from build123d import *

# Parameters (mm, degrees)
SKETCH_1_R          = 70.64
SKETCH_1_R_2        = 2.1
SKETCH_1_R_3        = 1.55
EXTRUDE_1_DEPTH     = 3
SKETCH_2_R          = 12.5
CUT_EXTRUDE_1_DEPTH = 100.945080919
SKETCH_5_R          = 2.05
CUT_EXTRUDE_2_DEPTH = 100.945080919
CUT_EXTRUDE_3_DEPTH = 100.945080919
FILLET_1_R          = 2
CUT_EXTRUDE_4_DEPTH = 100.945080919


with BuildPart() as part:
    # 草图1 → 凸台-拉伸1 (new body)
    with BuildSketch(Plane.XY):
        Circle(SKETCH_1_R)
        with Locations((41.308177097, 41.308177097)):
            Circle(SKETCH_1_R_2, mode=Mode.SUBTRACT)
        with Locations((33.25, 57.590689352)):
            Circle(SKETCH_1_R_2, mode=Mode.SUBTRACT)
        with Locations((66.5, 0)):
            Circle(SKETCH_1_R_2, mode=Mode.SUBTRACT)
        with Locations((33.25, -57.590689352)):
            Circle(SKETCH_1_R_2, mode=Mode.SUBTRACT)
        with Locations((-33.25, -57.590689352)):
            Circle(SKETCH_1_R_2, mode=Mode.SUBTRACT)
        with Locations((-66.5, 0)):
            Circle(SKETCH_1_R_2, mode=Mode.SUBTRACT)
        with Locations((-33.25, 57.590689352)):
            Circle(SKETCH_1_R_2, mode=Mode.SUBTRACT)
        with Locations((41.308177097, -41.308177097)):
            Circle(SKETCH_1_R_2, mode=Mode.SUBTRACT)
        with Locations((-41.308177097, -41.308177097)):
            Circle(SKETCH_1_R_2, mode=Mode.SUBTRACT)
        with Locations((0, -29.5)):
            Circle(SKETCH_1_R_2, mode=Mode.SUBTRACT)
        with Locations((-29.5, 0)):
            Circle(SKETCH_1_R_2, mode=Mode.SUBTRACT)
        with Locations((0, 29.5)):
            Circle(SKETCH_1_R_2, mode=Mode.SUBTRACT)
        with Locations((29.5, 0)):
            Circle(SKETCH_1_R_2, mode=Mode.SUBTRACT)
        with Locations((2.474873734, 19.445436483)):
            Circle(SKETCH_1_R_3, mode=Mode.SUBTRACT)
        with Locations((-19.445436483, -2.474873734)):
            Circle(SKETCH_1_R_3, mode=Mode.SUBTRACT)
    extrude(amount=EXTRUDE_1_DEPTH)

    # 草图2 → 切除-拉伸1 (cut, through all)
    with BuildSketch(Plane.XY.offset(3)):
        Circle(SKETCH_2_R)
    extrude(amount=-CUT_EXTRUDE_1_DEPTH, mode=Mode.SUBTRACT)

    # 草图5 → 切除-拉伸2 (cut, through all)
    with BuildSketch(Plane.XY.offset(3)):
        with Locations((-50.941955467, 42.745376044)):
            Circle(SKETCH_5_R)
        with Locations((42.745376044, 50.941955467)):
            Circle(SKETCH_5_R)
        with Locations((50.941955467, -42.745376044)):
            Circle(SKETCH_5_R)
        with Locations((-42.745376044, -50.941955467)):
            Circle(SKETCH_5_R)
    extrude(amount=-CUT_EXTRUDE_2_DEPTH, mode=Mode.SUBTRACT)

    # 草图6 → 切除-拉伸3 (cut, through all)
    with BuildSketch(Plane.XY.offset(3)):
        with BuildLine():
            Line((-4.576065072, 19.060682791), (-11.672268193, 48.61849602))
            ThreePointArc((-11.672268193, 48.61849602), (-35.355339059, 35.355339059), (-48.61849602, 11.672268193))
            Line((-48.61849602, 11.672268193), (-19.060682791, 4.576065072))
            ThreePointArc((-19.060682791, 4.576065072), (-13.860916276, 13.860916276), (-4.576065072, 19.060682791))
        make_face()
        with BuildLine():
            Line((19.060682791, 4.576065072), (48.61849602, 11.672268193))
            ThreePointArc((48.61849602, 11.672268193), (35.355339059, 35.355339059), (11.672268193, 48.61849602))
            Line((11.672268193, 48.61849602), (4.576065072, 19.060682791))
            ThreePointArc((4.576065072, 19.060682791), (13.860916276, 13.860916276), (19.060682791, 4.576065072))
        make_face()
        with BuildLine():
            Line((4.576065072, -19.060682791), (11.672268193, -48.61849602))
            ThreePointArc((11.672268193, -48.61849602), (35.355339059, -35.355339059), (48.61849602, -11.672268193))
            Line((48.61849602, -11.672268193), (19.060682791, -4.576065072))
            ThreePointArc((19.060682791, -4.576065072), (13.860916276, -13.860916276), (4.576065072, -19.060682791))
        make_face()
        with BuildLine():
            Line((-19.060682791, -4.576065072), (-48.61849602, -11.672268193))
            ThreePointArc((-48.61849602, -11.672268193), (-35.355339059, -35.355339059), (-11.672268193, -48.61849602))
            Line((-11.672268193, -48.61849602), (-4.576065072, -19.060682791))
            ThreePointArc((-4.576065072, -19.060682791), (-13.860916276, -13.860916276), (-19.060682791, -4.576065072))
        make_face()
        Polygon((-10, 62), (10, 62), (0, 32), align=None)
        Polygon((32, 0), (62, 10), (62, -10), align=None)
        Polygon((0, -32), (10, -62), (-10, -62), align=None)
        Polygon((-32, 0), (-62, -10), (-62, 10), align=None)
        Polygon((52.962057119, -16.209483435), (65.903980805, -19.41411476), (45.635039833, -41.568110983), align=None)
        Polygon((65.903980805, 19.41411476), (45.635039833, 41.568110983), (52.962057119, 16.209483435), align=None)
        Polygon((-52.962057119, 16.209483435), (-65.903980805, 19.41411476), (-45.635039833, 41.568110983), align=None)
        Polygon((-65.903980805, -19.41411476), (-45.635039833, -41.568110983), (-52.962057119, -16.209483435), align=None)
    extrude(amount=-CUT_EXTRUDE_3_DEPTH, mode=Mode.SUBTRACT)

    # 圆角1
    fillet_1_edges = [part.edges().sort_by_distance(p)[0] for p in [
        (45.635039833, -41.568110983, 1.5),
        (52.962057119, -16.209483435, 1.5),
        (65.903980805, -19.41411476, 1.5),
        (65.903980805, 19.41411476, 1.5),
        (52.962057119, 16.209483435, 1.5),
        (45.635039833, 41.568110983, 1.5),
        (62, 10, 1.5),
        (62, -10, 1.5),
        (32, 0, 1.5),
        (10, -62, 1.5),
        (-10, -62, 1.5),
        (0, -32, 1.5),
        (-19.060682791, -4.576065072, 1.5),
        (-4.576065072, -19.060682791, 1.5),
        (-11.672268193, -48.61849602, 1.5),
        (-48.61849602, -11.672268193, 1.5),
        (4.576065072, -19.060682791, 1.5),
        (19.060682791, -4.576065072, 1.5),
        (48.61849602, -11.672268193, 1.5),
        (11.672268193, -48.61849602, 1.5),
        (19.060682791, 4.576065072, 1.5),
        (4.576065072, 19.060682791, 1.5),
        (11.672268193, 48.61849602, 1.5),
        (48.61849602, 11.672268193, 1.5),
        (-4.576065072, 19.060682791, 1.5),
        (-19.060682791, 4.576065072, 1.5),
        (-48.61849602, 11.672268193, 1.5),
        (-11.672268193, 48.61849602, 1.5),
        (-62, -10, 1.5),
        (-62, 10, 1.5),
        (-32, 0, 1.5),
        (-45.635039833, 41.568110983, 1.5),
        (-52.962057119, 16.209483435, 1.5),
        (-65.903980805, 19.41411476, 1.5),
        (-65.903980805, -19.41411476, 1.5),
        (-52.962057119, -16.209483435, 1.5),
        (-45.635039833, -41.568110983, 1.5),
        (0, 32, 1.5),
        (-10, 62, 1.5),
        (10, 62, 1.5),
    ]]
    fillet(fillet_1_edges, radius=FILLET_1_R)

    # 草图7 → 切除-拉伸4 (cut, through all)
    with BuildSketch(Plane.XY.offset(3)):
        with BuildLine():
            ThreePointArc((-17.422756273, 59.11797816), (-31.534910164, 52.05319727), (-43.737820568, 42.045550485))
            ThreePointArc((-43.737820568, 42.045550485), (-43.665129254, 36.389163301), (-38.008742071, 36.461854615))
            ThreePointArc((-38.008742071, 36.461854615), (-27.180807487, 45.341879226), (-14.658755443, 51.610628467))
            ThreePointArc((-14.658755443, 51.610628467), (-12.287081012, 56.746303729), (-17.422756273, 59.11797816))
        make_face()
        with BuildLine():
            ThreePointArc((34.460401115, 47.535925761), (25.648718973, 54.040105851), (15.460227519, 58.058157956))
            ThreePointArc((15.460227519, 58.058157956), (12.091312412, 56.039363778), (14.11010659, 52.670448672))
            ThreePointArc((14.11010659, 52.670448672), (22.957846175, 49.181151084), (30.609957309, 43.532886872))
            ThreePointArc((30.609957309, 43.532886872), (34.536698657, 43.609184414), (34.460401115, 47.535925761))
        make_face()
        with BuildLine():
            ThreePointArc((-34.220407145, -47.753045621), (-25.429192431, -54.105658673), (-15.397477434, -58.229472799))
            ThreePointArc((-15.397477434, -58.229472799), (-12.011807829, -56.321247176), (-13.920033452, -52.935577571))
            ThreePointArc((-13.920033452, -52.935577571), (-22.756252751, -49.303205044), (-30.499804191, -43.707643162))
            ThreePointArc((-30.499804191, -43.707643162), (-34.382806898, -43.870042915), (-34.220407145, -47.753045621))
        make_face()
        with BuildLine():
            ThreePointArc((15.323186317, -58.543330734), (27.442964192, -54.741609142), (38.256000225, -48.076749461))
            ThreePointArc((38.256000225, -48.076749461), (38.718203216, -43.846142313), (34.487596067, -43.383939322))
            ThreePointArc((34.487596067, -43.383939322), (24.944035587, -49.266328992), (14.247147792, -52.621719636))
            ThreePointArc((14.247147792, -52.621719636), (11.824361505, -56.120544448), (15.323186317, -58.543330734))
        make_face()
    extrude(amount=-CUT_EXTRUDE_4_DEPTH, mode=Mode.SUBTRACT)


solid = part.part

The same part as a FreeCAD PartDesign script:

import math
import FreeCAD as App
import Part
import Sketcher

V = App.Vector
Q = App.Units.Quantity


def edges_at(feature, points):
    """Names of the edges that pass closest to the given points."""
    edges = feature.Shape.Edges
    near = lambda p: min(range(len(edges)), key=lambda i: edges[i].distToShape(Part.Vertex(*p))[0])
    return sorted({f"Edge{near(p) + 1}" for p in points})


def add_polygon(sketch, points):
    """Adds a closed chain of lines whose ends are joined by coincident constraints."""
    first, n = sketch.GeometryCount, len(points)
    for a, b in zip(points, points[1:] + points[:1]):
        sketch.addGeometry(Part.LineSegment(App.Vector(*a, 0), App.Vector(*b, 0)), False)
    for i in range(n):
        sketch.addConstraint(Sketcher.Constraint("Coincident", first + i, 2, first + (i + 1) % n, 1))

doc = App.newDocument("Part")
params = doc.addObject("Spreadsheet::Sheet", "Params")
for row, (alias, value) in enumerate([
    ("sketch1_diameter", "4.2 mm"),
    ("sketch1_diameter2", "3.1 mm"),
    ("sketch1_diameter3", "141.28 mm"),
    ("pad1_length", "3 mm"),
    ("sketch2_diameter", "25 mm"),
    ("sketch3_diameter", "4.1 mm"),
    ("sketch4_radius", "50 mm"),
    ("sketch4_width", "20 mm"),
    ("fillet_radius", "2 mm"),
    ("sketch5_radius", "71 mm"),
    ("sketch5_radius2", "4 mm"),
], start=1):
    params.set(f"A{row}", alias)
    params.set(f"B{row}", "=" + value)
    params.setAlias(f"B{row}", alias)

body = doc.addObject("PartDesign::Body", "Body")

# Sketch on XY plane
sketch1 = doc.addObject("Sketcher::SketchObject", "Sketch")
body.addObject(sketch1)
sketch1.AttachmentSupport = (doc.XY_Plane, [""])
sketch1.MapMode = "FlatFace"
sketch1.addGeometry(Part.Circle(V(0, 0, 0), V(0, 0, 1), 70.64), False)
sketch1.addGeometry(Part.Circle(V(-41.308177, -41.308177, 0), V(0, 0, 1), 2.1), False)
sketch1.addGeometry(Part.Circle(V(-33.25, -57.590689, 0), V(0, 0, 1), 2.1), False)
sketch1.addGeometry(Part.Circle(V(-19.445436, -2.474874, 0), V(0, 0, 1), 1.55), False)
sketch1.addGeometry(Part.Circle(V(33.25, -57.590689, 0), V(0, 0, 1), 2.1), False)
sketch1.addGeometry(Part.Circle(V(41.308177, -41.308177, 0), V(0, 0, 1), 2.1), False)
sketch1.addGeometry(Part.Circle(V(0, -29.5, 0), V(0, 0, 1), 2.1), False)
sketch1.addGeometry(Part.Circle(V(-66.5, 0, 0), V(0, 0, 1), 2.1), False)
sketch1.addGeometry(Part.Circle(V(-29.5, 0, 0), V(0, 0, 1), 2.1), False)
sketch1.addGeometry(Part.Circle(V(-33.25, 57.590689, 0), V(0, 0, 1), 2.1), False)
sketch1.addGeometry(Part.Circle(V(29.5, 0, 0), V(0, 0, 1), 2.1), False)
sketch1.addGeometry(Part.Circle(V(2.474874, 19.445436, 0), V(0, 0, 1), 1.55), False)
sketch1.addGeometry(Part.Circle(V(0, 29.5, 0), V(0, 0, 1), 2.1), False)
sketch1.addGeometry(Part.Circle(V(66.5, 0, 0), V(0, 0, 1), 2.1), False)
sketch1.addGeometry(Part.Circle(V(33.25, 57.590689, 0), V(0, 0, 1), 2.1), False)
sketch1.addGeometry(Part.Circle(V(41.308177, 41.308177, 0), V(0, 0, 1), 2.1), False)
sketch1.addConstraint(Sketcher.Constraint("Coincident", 0, 3, -1, 1))
sketch1.addConstraint(Sketcher.Constraint("Equal", 1, 2))
sketch1.addConstraint(Sketcher.Constraint("Equal", 2, 4))
sketch1.addConstraint(Sketcher.Constraint("Equal", 4, 5))
sketch1.addConstraint(Sketcher.Constraint("Equal", 5, 6))
sketch1.addConstraint(Sketcher.Constraint("Equal", 6, 7))
sketch1.addConstraint(Sketcher.Constraint("Equal", 7, 8))
sketch1.addConstraint(Sketcher.Constraint("Equal", 8, 9))
sketch1.addConstraint(Sketcher.Constraint("Equal", 9, 10))
sketch1.addConstraint(Sketcher.Constraint("Equal", 3, 11))
sketch1.addConstraint(Sketcher.Constraint("Equal", 10, 12))
sketch1.addConstraint(Sketcher.Constraint("Equal", 12, 13))
sketch1.addConstraint(Sketcher.Constraint("Equal", 13, 14))
sketch1.addConstraint(Sketcher.Constraint("Equal", 14, 15))
sketch1.addConstraint(Sketcher.Constraint("Symmetric", 4, 3, 9, 3, -1, 1))
sketch1.addConstraint(Sketcher.Constraint("Symmetric", 8, 3, 10, 3, -1, 1))
sketch1.addConstraint(Sketcher.Constraint("Symmetric", 6, 3, 12, 3, -1, 1))
sketch1.addConstraint(Sketcher.Constraint("Symmetric", 7, 3, 13, 3, -1, 1))
sketch1.addConstraint(Sketcher.Constraint("Symmetric", 2, 3, 14, 3, -1, 1))
sketch1.addConstraint(Sketcher.Constraint("Symmetric", 1, 3, 15, 3, -1, 1))
sketch1.addConstraint(Sketcher.Constraint("Symmetric", 2, 3, 4, 3, -2))
sketch1.addConstraint(Sketcher.Constraint("Symmetric", 1, 3, 5, 3, -2))
sketch1.addConstraint(Sketcher.Constraint("PointOnObject", 6, 3, -2))
sketch1.addConstraint(Sketcher.Constraint("PointOnObject", 7, 3, -1))
sketch1.addConstraint(Sketcher.Constraint("PointOnObject", 8, 3, -1))
sketch1.addConstraint(Sketcher.Constraint("Diameter", 1, Q("4.2 mm")))
sketch1.addConstraint(Sketcher.Constraint("Diameter", 3, Q("3.1 mm")))
sketch1.addConstraint(Sketcher.Constraint("Diameter", 0, Q("141.28 mm")))
sketch1.addConstraint(Sketcher.Constraint("DistanceX", 7, 3, 8, 3, Q("37 mm")))
sketch1.addConstraint(Sketcher.Constraint("DistanceY", 6, 3, -1, 1, Q("29.5 mm")))
sketch1.addConstraint(Sketcher.Constraint("DistanceX", 7, 3, -1, 1, Q("66.5 mm")))
sketch1.addConstraint(Sketcher.Constraint("DistanceX", 2, 3, 4, 3, Q("66.5 mm")))
sketch1.addConstraint(Sketcher.Constraint("DistanceY", 2, 3, -1, 1, Q("57.590689 mm")))
sketch1.addConstraint(Sketcher.Constraint("DistanceX", 1, 3, 3, 3, Q("21.862741 mm")))
sketch1.addConstraint(Sketcher.Constraint("DistanceX", 3, 3, 11, 3, Q("21.92031 mm")))
sketch1.addConstraint(Sketcher.Constraint("DistanceY", 3, 3, 11, 3, Q("21.92031 mm")))
sketch1.addConstraint(Sketcher.Constraint("DistanceY", 11, 3, 15, 3, Q("21.862741 mm")))
sketch1.addConstraint(Sketcher.Constraint("DistanceX", 1, 3, -1, 1, Q("41.308177 mm")))
sketch1.addConstraint(Sketcher.Constraint("DistanceY", 1, 3, -1, 1, Q("41.308177 mm")))
sketch1.setExpression("Constraints[25]", "Params.sketch1_diameter")
sketch1.setExpression("Constraints[26]", "Params.sketch1_diameter2")
sketch1.setExpression("Constraints[27]", "Params.sketch1_diameter3")
pad1 = doc.addObject("PartDesign::Pad", "Pad")
body.addObject(pad1)
pad1.Profile = sketch1
pad1.setExpression("Length", "Params.pad1_length")

# Sketch on XY plane
sketch2 = doc.addObject("Sketcher::SketchObject", "Sketch001")
body.addObject(sketch2)
sketch2.AttachmentSupport = (doc.XY_Plane, [""])
sketch2.MapMode = "FlatFace"
sketch2.AttachmentOffset = App.Placement(V(0, 0, 3), App.Rotation())
sketch2.addGeometry(Part.Circle(V(0, 0, 0), V(0, 0, 1), 12.5), False)
sketch2.addConstraint(Sketcher.Constraint("Coincident", 0, 3, -1, 1))
sketch2.addConstraint(Sketcher.Constraint("Diameter", 0, Q("25 mm")))
sketch2.setExpression("Constraints[1]", "Params.sketch2_diameter")
pocket1 = doc.addObject("PartDesign::Pocket", "Pocket")
body.addObject(pocket1)
pocket1.Profile = sketch2
pocket1.Type = "ThroughAll"

# Sketch on XY plane
sketch3 = doc.addObject("Sketcher::SketchObject", "Sketch002")
body.addObject(sketch3)
sketch3.AttachmentSupport = (doc.XY_Plane, [""])
sketch3.MapMode = "FlatFace"
sketch3.AttachmentOffset = App.Placement(V(0, 0, 3), App.Rotation())
sketch3.addGeometry(Part.Circle(V(-50.941955, 42.745376, 0), V(0, 0, 1), 2.05), False)
sketch3.addGeometry(Part.Circle(V(42.745376, 50.941955, 0), V(0, 0, 1), 2.05), False)
sketch3.addGeometry(Part.Circle(V(50.941955, -42.745376, 0), V(0, 0, 1), 2.05), False)
sketch3.addGeometry(Part.Circle(V(-42.745376, -50.941955, 0), V(0, 0, 1), 2.05), False)
sketch3.addConstraint(Sketcher.Constraint("Equal", 0, 1))
sketch3.addConstraint(Sketcher.Constraint("Equal", 1, 2))
sketch3.addConstraint(Sketcher.Constraint("Equal", 2, 3))
sketch3.addConstraint(Sketcher.Constraint("Symmetric", 0, 3, 2, 3, -1, 1))
sketch3.addConstraint(Sketcher.Constraint("Symmetric", 1, 3, 3, 3, -1, 1))
sketch3.addConstraint(Sketcher.Constraint("Diameter", 0, Q("4.1 mm")))
sketch3.addConstraint(Sketcher.Constraint("DistanceX", 0, 3, 1, 3, Q("93.687332 mm")))
sketch3.addConstraint(Sketcher.Constraint("DistanceY", 0, 3, 1, 3, Q("8.196579 mm")))
sketch3.addConstraint(Sketcher.Constraint("DistanceX", 1, 3, 2, 3, Q("8.196579 mm")))
sketch3.addConstraint(Sketcher.Constraint("DistanceY", 2, 3, 1, 3, Q("93.687332 mm")))
sketch3.setExpression("Constraints[5]", "Params.sketch3_diameter")
pocket2 = doc.addObject("PartDesign::Pocket", "Pocket001")
body.addObject(pocket2)
pocket2.Profile = sketch3
pocket2.Type = "ThroughAll"

# Sketch on XY plane
sketch4 = doc.addObject("Sketcher::SketchObject", "Sketch003")
body.addObject(sketch4)
sketch4.AttachmentSupport = (doc.XY_Plane, [""])
sketch4.MapMode = "FlatFace"
sketch4.AttachmentOffset = App.Placement(V(0, 0, 3), App.Rotation())
sketch4.addGeometry(Part.LineSegment(V(-4.576065, 19.060683, 0), V(-11.672268, 48.618496, 0)), False)  # 0
sketch4.addGeometry(Part.ArcOfCircle(Part.Circle(V(0, 0, 0), V(0, 0, 1), 50), math.radians(103.5), math.radians(166.5)), False)  # 1
sketch4.addGeometry(Part.LineSegment(V(-48.618496, 11.672268, 0), V(-19.060683, 4.576065, 0)), False)  # 2
sketch4.addGeometry(Part.ArcOfCircle(Part.Circle(V(0, 0, 0), V(0, 0, 1), 19.602296), math.radians(103.5), math.radians(166.5)), False)  # 3
sketch4.addGeometry(Part.LineSegment(V(19.060683, 4.576065, 0), V(48.618496, 11.672268, 0)), False)  # 4
sketch4.addGeometry(Part.ArcOfCircle(Part.Circle(V(0, 0, 0), V(0, 0, 1), 50), math.radians(13.5), math.radians(76.5)), False)  # 5
sketch4.addGeometry(Part.LineSegment(V(11.672268, 48.618496, 0), V(4.576065, 19.060683, 0)), False)  # 6
sketch4.addGeometry(Part.ArcOfCircle(Part.Circle(V(0, 0, 0), V(0, 0, 1), 19.602296), math.radians(13.5), math.radians(76.5)), False)  # 7
sketch4.addGeometry(Part.LineSegment(V(4.576065, -19.060683, 0), V(11.672268, -48.618496, 0)), False)  # 8
sketch4.addGeometry(Part.ArcOfCircle(Part.Circle(V(0, 0, 0), V(0, 0, 1), 50), math.radians(-76.5), math.radians(-13.5)), False)  # 9
sketch4.addGeometry(Part.LineSegment(V(48.618496, -11.672268, 0), V(19.060683, -4.576065, 0)), False)  # 10
sketch4.addGeometry(Part.ArcOfCircle(Part.Circle(V(0, 0, 0), V(0, 0, 1), 19.602296), math.radians(-76.5), math.radians(-13.5)), False)  # 11
sketch4.addGeometry(Part.LineSegment(V(-19.060683, -4.576065, 0), V(-48.618496, -11.672268, 0)), False)  # 12
sketch4.addGeometry(Part.ArcOfCircle(Part.Circle(V(0, 0, 0), V(0, 0, 1), 50), math.radians(-166.5), math.radians(-103.5)), False)  # 13
sketch4.addGeometry(Part.LineSegment(V(-11.672268, -48.618496, 0), V(-4.576065, -19.060683, 0)), False)  # 14
sketch4.addGeometry(Part.ArcOfCircle(Part.Circle(V(0, 0, 0), V(0, 0, 1), 19.602296), math.radians(-166.5), math.radians(-103.5)), False)  # 15
add_polygon(sketch4, [(10, 62), (-10, 62), (0, 32)])  # lines 16-18
add_polygon(sketch4, [(62, 10), (32, 0), (62, -10)])  # lines 19-21
add_polygon(sketch4, [(10, -62), (0, -32), (-10, -62)])  # lines 22-24
add_polygon(sketch4, [(-62, -10), (-32, 0), (-62, 10)])  # lines 25-27
add_polygon(sketch4, [(65.903981, -19.414115), (52.962057, -16.209483), (45.63504, -41.568111)])  # lines 28-30
add_polygon(sketch4, [(65.903981, 19.414115), (45.63504, 41.568111), (52.962057, 16.209483)])  # lines 31-33
add_polygon(sketch4, [(-65.903981, 19.414115), (-52.962057, 16.209483), (-45.63504, 41.568111)])  # lines 34-36
add_polygon(sketch4, [(-65.903981, -19.414115), (-45.63504, -41.568111), (-52.962057, -16.209483)])  # lines 37-39
sketch4.addConstraint(Sketcher.Constraint("Coincident", 0, 2, 1, 1))
sketch4.addConstraint(Sketcher.Constraint("Coincident", 1, 2, 2, 1))
sketch4.addConstraint(Sketcher.Constraint("Coincident", 2, 2, 3, 2))
sketch4.addConstraint(Sketcher.Constraint("Coincident", 3, 1, 0, 1))
sketch4.addConstraint(Sketcher.Constraint("Coincident", 4, 2, 5, 1))
sketch4.addConstraint(Sketcher.Constraint("Coincident", 5, 2, 6, 1))
sketch4.addConstraint(Sketcher.Constraint("Coincident", 6, 2, 7, 2))
sketch4.addConstraint(Sketcher.Constraint("Coincident", 7, 1, 4, 1))
sketch4.addConstraint(Sketcher.Constraint("Coincident", 8, 2, 9, 1))
sketch4.addConstraint(Sketcher.Constraint("Coincident", 9, 2, 10, 1))
sketch4.addConstraint(Sketcher.Constraint("Coincident", 10, 2, 11, 2))
sketch4.addConstraint(Sketcher.Constraint("Coincident", 11, 1, 8, 1))
sketch4.addConstraint(Sketcher.Constraint("Coincident", 12, 2, 13, 1))
sketch4.addConstraint(Sketcher.Constraint("Coincident", 13, 2, 14, 1))
sketch4.addConstraint(Sketcher.Constraint("Coincident", 14, 2, 15, 2))
sketch4.addConstraint(Sketcher.Constraint("Coincident", 15, 1, 12, 1))
sketch4.addConstraint(Sketcher.Constraint("Horizontal", 16))
sketch4.addConstraint(Sketcher.Constraint("Vertical", 21))
sketch4.addConstraint(Sketcher.Constraint("Horizontal", 24))
sketch4.addConstraint(Sketcher.Constraint("Vertical", 27))
sketch4.addConstraint(Sketcher.Constraint("Coincident", 1, 3, -1, 1))
sketch4.addConstraint(Sketcher.Constraint("Coincident", 3, 3, -1, 1))
sketch4.addConstraint(Sketcher.Constraint("Coincident", 5, 3, -1, 1))
sketch4.addConstraint(Sketcher.Constraint("Coincident", 7, 3, -1, 1))
sketch4.addConstraint(Sketcher.Constraint("Coincident", 9, 3, -1, 1))
sketch4.addConstraint(Sketcher.Constraint("Coincident", 11, 3, -1, 1))
sketch4.addConstraint(Sketcher.Constraint("Coincident", 13, 3, -1, 1))
sketch4.addConstraint(Sketcher.Constraint("Coincident", 15, 3, -1, 1))
sketch4.addConstraint(Sketcher.Constraint("Equal", 1, 5))
sketch4.addConstraint(Sketcher.Constraint("Equal", 3, 7))
sketch4.addConstraint(Sketcher.Constraint("Equal", 5, 9))
sketch4.addConstraint(Sketcher.Constraint("Equal", 7, 11))
sketch4.addConstraint(Sketcher.Constraint("Equal", 9, 13))
sketch4.addConstraint(Sketcher.Constraint("Equal", 11, 15))
sketch4.addConstraint(Sketcher.Constraint("Symmetric", 17, 2, 22, 2, -1, 1))
sketch4.addConstraint(Sketcher.Constraint("Symmetric", 18, 2, 23, 2, -1, 1))
sketch4.addConstraint(Sketcher.Constraint("Symmetric", 19, 2, 25, 2, -1, 1))
sketch4.addConstraint(Sketcher.Constraint("Symmetric", 20, 2, 26, 2, -1, 1))
sketch4.addConstraint(Sketcher.Constraint("Symmetric", 28, 2, 34, 2, -1, 1))
sketch4.addConstraint(Sketcher.Constraint("Symmetric", 29, 2, 35, 2, -1, 1))
sketch4.addConstraint(Sketcher.Constraint("Symmetric", 30, 2, 36, 2, -1, 1))
sketch4.addConstraint(Sketcher.Constraint("Symmetric", 31, 2, 37, 2, -1, 1))
sketch4.addConstraint(Sketcher.Constraint("Symmetric", 32, 2, 38, 2, -1, 1))
sketch4.addConstraint(Sketcher.Constraint("Symmetric", 33, 2, 39, 2, -1, 1))
sketch4.addConstraint(Sketcher.Constraint("Symmetric", 32, 2, 34, 2, -2))
sketch4.addConstraint(Sketcher.Constraint("Symmetric", 31, 2, 35, 2, -2))
sketch4.addConstraint(Sketcher.Constraint("Symmetric", 33, 2, 36, 2, -2))
sketch4.addConstraint(Sketcher.Constraint("PointOnObject", 17, 2, -2))
sketch4.addConstraint(Sketcher.Constraint("PointOnObject", 19, 2, -1))
sketch4.addConstraint(Sketcher.Constraint("Perpendicular", 0, 4))
sketch4.addConstraint(Sketcher.Constraint("Perpendicular", 2, 6))
sketch4.addConstraint(Sketcher.Constraint("Perpendicular", 4, 8))
sketch4.addConstraint(Sketcher.Constraint("Perpendicular", 6, 10))
sketch4.addConstraint(Sketcher.Constraint("Perpendicular", 8, 12))
sketch4.addConstraint(Sketcher.Constraint("Perpendicular", 10, 14))
sketch4.addConstraint(Sketcher.Constraint("Perpendicular", 17, 19))
sketch4.addConstraint(Sketcher.Constraint("Perpendicular", 18, 20))
sketch4.addConstraint(Sketcher.Constraint("Perpendicular", 19, 22))
sketch4.addConstraint(Sketcher.Constraint("Perpendicular", 22, 25))
sketch4.addConstraint(Sketcher.Constraint("Horizontal", 1, 2, 4, 2))
sketch4.addConstraint(Sketcher.Constraint("Horizontal", 0, 2, 5, 2))
sketch4.addConstraint(Sketcher.Constraint("Horizontal", 3, 1, 6, 2))
sketch4.addConstraint(Sketcher.Constraint("Horizontal", 9, 2, 12, 2))
sketch4.addConstraint(Sketcher.Constraint("Horizontal", 8, 2, 13, 2))
sketch4.addConstraint(Sketcher.Constraint("Horizontal", 21, 2, 26, 2))
sketch4.addConstraint(Sketcher.Constraint("Vertical", 5, 2, 8, 2))
sketch4.addConstraint(Sketcher.Constraint("Vertical", 4, 2, 9, 2))
sketch4.addConstraint(Sketcher.Constraint("Equal", 24, 21))
sketch4.addConstraint(Sketcher.Constraint("Radius", 1, Q("50 mm")))
sketch4.addConstraint(Sketcher.Constraint("DistanceX", 16, 2, 16, 1, Q("20 mm")))
sketch4.addConstraint(Sketcher.Constraint("DistanceY", -1, 1, 16, 2, Q("62 mm")))
sketch4.addConstraint(Sketcher.Constraint("DistanceY", -1, 1, 17, 2, Q("32 mm")))
sketch4.addConstraint(Sketcher.Constraint("DistanceX", -1, 1, 19, 2, Q("32 mm")))
sketch4.addConstraint(Sketcher.Constraint("Angle", 0, Q("103.5 deg")))
sketch4.addConstraint(Sketcher.Constraint("Radius", 3, Q("19.602296 mm")))
sketch4.addConstraint(Sketcher.Constraint("Distance", 28, Q("13.332781 mm")))
sketch4.addConstraint(Sketcher.Constraint("Distance", 29, Q("26.395931 mm")))
sketch4.addConstraint(Sketcher.Constraint("DistanceX", 0, 2, -1, 1, Q("11.672268 mm")))
sketch4.addConstraint(Sketcher.Constraint("DistanceY", -1, 1, 1, 2, Q("11.672268 mm")))
sketch4.addConstraint(Sketcher.Constraint("DistanceX", -1, 1, 29, 2, Q("45.63504 mm")))
sketch4.addConstraint(Sketcher.Constraint("DistanceY", 29, 2, -1, 1, Q("41.568111 mm")))
sketch4.addConstraint(Sketcher.Constraint("DistanceX", -1, 1, 30, 2, Q("65.903981 mm")))
sketch4.addConstraint(Sketcher.Constraint("DistanceX", 9, 2, 28, 2, Q("4.343561 mm")))
sketch4.setExpression("Constraints[92]", "Params.sketch4_radius")
sketch4.setExpression("Constraints[93]", "Params.sketch4_width")
pocket3 = doc.addObject("PartDesign::Pocket", "Pocket002")
body.addObject(pocket3)
pocket3.Profile = sketch4
pocket3.Type = "ThroughAll"
doc.recompute()

fillet = doc.addObject("PartDesign::Fillet", "Fillet")
body.addObject(fillet)
fillet.Base = (pocket3, edges_at(pocket3, [
    (45.635, -41.568, 1.5),
    (52.962, -16.209, 1.5),
    (65.904, -19.414, 1.5),
    (65.904, 19.414, 1.5),
    (52.962, 16.209, 1.5),
    (45.635, 41.568, 1.5),
    (62, 10, 1.5),
    (62, -10, 1.5),
    (32, 0, 1.5),
    (10, -62, 1.5),
    (-10, -62, 1.5),
    (0, -32, 1.5),
    (-19.061, -4.576, 1.5),
    (-4.576, -19.061, 1.5),
    (-11.672, -48.618, 1.5),
    (-48.618, -11.672, 1.5),
    (4.576, -19.061, 1.5),
    (19.061, -4.576, 1.5),
    (48.618, -11.672, 1.5),
    (11.672, -48.618, 1.5),
    (19.061, 4.576, 1.5),
    (4.576, 19.061, 1.5),
    (11.672, 48.618, 1.5),
    (48.618, 11.672, 1.5),
    (-4.576, 19.061, 1.5),
    (-19.061, 4.576, 1.5),
    (-48.618, 11.672, 1.5),
    (-11.672, 48.618, 1.5),
    (-62, -10, 1.5),
    (-62, 10, 1.5),
    (-32, 0, 1.5),
    (-45.635, 41.568, 1.5),
    (-52.962, 16.209, 1.5),
    (-65.904, 19.414, 1.5),
    (-65.904, -19.414, 1.5),
    (-52.962, -16.209, 1.5),
    (-45.635, -41.568, 1.5),
    (0, 32, 1.5),
    (-10, 62, 1.5),
    (10, 62, 1.5),
]))
fillet.setExpression("Radius", "Params.fillet_radius")

# Sketch on XY plane
sketch5 = doc.addObject("Sketcher::SketchObject", "Sketch004")
body.addObject(sketch5)
sketch5.AttachmentSupport = (doc.XY_Plane, [""])
sketch5.MapMode = "FlatFace"
sketch5.AttachmentOffset = App.Placement(V(0, 0, 3), App.Rotation())
sketch5.addGeometry(Part.ArcOfCircle(Part.Circle(V(7.107751, -7.50975, 0), V(0, 0, 1), 71), math.radians(110.212327), math.radians(135.736278)), False)
sketch5.addGeometry(Part.ArcOfCircle(Part.Circle(V(-40.873281, 39.253703, 0), V(0, 0, 1), 4), math.radians(135.736278), math.radians(315.736278)), False)
sketch5.addGeometry(Part.ArcOfCircle(Part.Circle(V(7.107751, -7.50975, 0), V(0, 0, 1), 63), math.radians(110.212327), math.radians(135.736278)), False)
sketch5.addGeometry(Part.ArcOfCircle(Part.Circle(V(-16.040756, 55.364303, 0), V(0, 0, 1), 4), math.radians(-69.787673), math.radians(110.212327)), False)
sketch5.addGeometry(Part.ArcOfCircle(Part.Circle(V(5.20054, 17.116481, 0), V(0, 0, 1), 42.207607), math.radians(46.113131), math.radians(75.931796)), False)
sketch5.addGeometry(Part.ArcOfCircle(Part.Circle(V(14.785167, 55.364303, 0), V(0, 0, 1), 2.77715), math.radians(75.931796), math.radians(255.931796)), False)
sketch5.addGeometry(Part.ArcOfCircle(Part.Circle(V(5.20054, 17.116481, 0), V(0, 0, 1), 36.653308), math.radians(46.113131), math.radians(75.931796)), False)
sketch5.addGeometry(Part.ArcOfCircle(Part.Circle(V(32.535179, 45.534406, 0), V(0, 0, 1), 2.77715), math.radians(-133.886869), math.radians(46.113131)), False)
sketch5.addGeometry(Part.ArcOfCircle(Part.Circle(V(-2.999861, -13.807023, 0), V(0, 0, 1), 46.120006), math.radians(-132.605101), math.radians(-105.593593)), False)
sketch5.addGeometry(Part.ArcOfCircle(Part.Circle(V(-14.658755, -55.582525, 0), V(0, 0, 1), 2.748098), math.radians(-105.593593), math.radians(74.406407)), False)
sketch5.addGeometry(Part.ArcOfCircle(Part.Circle(V(-2.999861, -13.807023, 0), V(0, 0, 1), 40.62381), math.radians(-132.605101), math.radians(-105.593593)), False)
sketch5.addGeometry(Part.ArcOfCircle(Part.Circle(V(-32.360106, -45.730344, 0), V(0, 0, 1), 2.748098), math.radians(47.394899), math.radians(227.394899)), False)
sketch5.addGeometry(Part.ArcOfCircle(Part.Circle(V(6.157793, -8.104711, 0), V(0, 0, 1), 51.264596), math.radians(-79.700942), math.radians(-51.23496)), False)
sketch5.addGeometry(Part.ArcOfCircle(Part.Circle(V(36.371798, -45.730344, 0), V(0, 0, 1), 3.009291), math.radians(-51.23496), math.radians(128.76504)), False)
sketch5.addGeometry(Part.ArcOfCircle(Part.Circle(V(6.157793, -8.104711, 0), V(0, 0, 1), 45.246013), math.radians(-79.700942), math.radians(-51.23496)), False)
sketch5.addGeometry(Part.ArcOfCircle(Part.Circle(V(14.785167, -55.582525, 0), V(0, 0, 1), 3.009291), math.radians(100.299058), math.radians(280.299058)), False)
sketch5.addConstraint(Sketcher.Constraint("Coincident", 0, 2, 1, 1))
sketch5.addConstraint(Sketcher.Constraint("Coincident", 1, 2, 2, 2))
sketch5.addConstraint(Sketcher.Constraint("Coincident", 2, 1, 3, 1))
sketch5.addConstraint(Sketcher.Constraint("Coincident", 3, 2, 0, 1))
sketch5.addConstraint(Sketcher.Constraint("Coincident", 4, 2, 5, 1))
sketch5.addConstraint(Sketcher.Constraint("Coincident", 5, 2, 6, 2))
sketch5.addConstraint(Sketcher.Constraint("Coincident", 6, 1, 7, 1))
sketch5.addConstraint(Sketcher.Constraint("Coincident", 7, 2, 4, 1))
sketch5.addConstraint(Sketcher.Constraint("Coincident", 8, 2, 9, 1))
sketch5.addConstraint(Sketcher.Constraint("Coincident", 9, 2, 10, 2))
sketch5.addConstraint(Sketcher.Constraint("Coincident", 10, 1, 11, 1))
sketch5.addConstraint(Sketcher.Constraint("Coincident", 11, 2, 8, 1))
sketch5.addConstraint(Sketcher.Constraint("Coincident", 12, 2, 13, 1))
sketch5.addConstraint(Sketcher.Constraint("Coincident", 13, 2, 14, 2))
sketch5.addConstraint(Sketcher.Constraint("Coincident", 14, 1, 15, 1))
sketch5.addConstraint(Sketcher.Constraint("Coincident", 15, 2, 12, 1))
sketch5.addConstraint(Sketcher.Constraint("Coincident", 2, 3, 0, 3))
sketch5.addConstraint(Sketcher.Constraint("Coincident", 6, 3, 4, 3))
sketch5.addConstraint(Sketcher.Constraint("Coincident", 10, 3, 8, 3))
sketch5.addConstraint(Sketcher.Constraint("Coincident", 14, 3, 12, 3))
sketch5.addConstraint(Sketcher.Constraint("Radius", 0, Q("71 mm")))
sketch5.addConstraint(Sketcher.Constraint("Radius", 1, Q("4 mm")))
sketch5.addConstraint(Sketcher.Constraint("Radius", 5, Q("2.77715 mm")))
sketch5.addConstraint(Sketcher.Constraint("Radius", 6, Q("36.653308 mm")))
sketch5.addConstraint(Sketcher.Constraint("Radius", 10, Q("40.62381 mm")))
sketch5.addConstraint(Sketcher.Constraint("Radius", 13, Q("3.009291 mm")))
sketch5.addConstraint(Sketcher.Constraint("DistanceX", -1, 1, 12, 2, Q("38.256 mm")))
sketch5.addConstraint(Sketcher.Constraint("Radius", 8, Q("46.120006 mm")))
sketch5.addConstraint(Sketcher.Constraint("Radius", 12, Q("51.264596 mm")))
sketch5.addConstraint(Sketcher.Constraint("DistanceX", 3, 3, 2, 1, Q("1.382 mm")))
sketch5.addConstraint(Sketcher.Constraint("DistanceX", 3, 2, 3, 3, Q("1.382 mm")))
sketch5.addConstraint(Sketcher.Constraint("DistanceY", 12, 2, 2, 3, Q("40.566999 mm")))
sketch5.addConstraint(Sketcher.Constraint("DistanceX", -1, 1, 13, 3, Q("36.371798 mm")))
sketch5.addConstraint(Sketcher.Constraint("DistanceX", -1, 1, 7, 2, Q("34.460401 mm")))
sketch5.addConstraint(Sketcher.Constraint("DistanceY", 1, 3, 3, 3, Q("16.110601 mm")))
sketch5.addConstraint(Sketcher.Constraint("DistanceY", 1, 3, 5, 3, Q("16.110601 mm")))
sketch5.addConstraint(Sketcher.Constraint("DistanceX", 8, 3, 4, 3, Q("8.200401 mm")))
sketch5.addConstraint(Sketcher.Constraint("DistanceX", 9, 2, 15, 3, Q("28.705201 mm")))
sketch5.addConstraint(Sketcher.Constraint("DistanceX", 11, 3, 10, 1, Q("1.860301 mm")))
sketch5.addConstraint(Sketcher.Constraint("DistanceX", 11, 2, 11, 3, Q("1.860301 mm")))
sketch5.addConstraint(Sketcher.Constraint("DistanceX", -1, 1, 0, 3, Q("7.107751 mm")))
sketch5.addConstraint(Sketcher.Constraint("DistanceY", 0, 3, -1, 1, Q("7.50975 mm")))
sketch5.addConstraint(Sketcher.Constraint("DistanceX", 1, 3, -1, 1, Q("40.873281 mm")))
sketch5.addConstraint(Sketcher.Constraint("DistanceX", -1, 1, 4, 3, Q("5.20054 mm")))
sketch5.addConstraint(Sketcher.Constraint("DistanceY", -1, 1, 4, 3, Q("17.116481 mm")))
sketch5.addConstraint(Sketcher.Constraint("DistanceX", -1, 1, 7, 3, Q("32.535179 mm")))
sketch5.addConstraint(Sketcher.Constraint("DistanceY", 12, 3, -1, 1, Q("8.104711 mm")))
sketch5.addConstraint(Sketcher.Constraint("DistanceX", 0, 2, -1, 1, Q("43.737821 mm")))
sketch5.addConstraint(Sketcher.Constraint("DistanceY", -1, 1, 5, 2, Q("52.670449 mm")))
sketch5.addConstraint(Sketcher.Constraint("DistanceY", 13, 2, -1, 1, Q("43.383939 mm")))
sketch5.addConstraint(Sketcher.Constraint("DistanceY", 14, 1, -1, 1, Q("52.62172 mm")))
sketch5.addConstraint(Sketcher.Constraint("DistanceY", 15, 2, -1, 1, Q("58.543331 mm")))
sketch5.addConstraint(Sketcher.Constraint("DistanceX", 11, 3, 9, 3, Q("17.70135 mm")))
sketch5.addConstraint(Sketcher.Constraint("DistanceY", 9, 3, 11, 3, Q("9.852181 mm")))
sketch5.addConstraint(Sketcher.Constraint("DistanceY", 8, 3, 12, 3, Q("5.702311 mm")))
sketch5.addConstraint(Sketcher.Constraint("DistanceX", 15, 3, 13, 3, Q("21.586631 mm")))
sketch5.addConstraint(Sketcher.Constraint("DistanceX", 1, 3, 1, 2, Q("2.864539 mm")))
sketch5.addConstraint(Sketcher.Constraint("DistanceX", 5, 3, 4, 2, Q("0.67506 mm")))
sketch5.addConstraint(Sketcher.Constraint("DistanceX", 6, 1, 7, 3, Q("1.925222 mm")))
sketch5.addConstraint(Sketcher.Constraint("DistanceX", 8, 2, 9, 3, Q("0.738722 mm")))
sketch5.setExpression("Constraints[20]", "Params.sketch5_radius")
sketch5.setExpression("Constraints[21]", "Params.sketch5_radius2")
pocket4 = doc.addObject("PartDesign::Pocket", "Pocket003")
body.addObject(pocket4)
pocket4.Profile = sketch5
pocket4.Type = "ThroughAll"

doc.recompute()
